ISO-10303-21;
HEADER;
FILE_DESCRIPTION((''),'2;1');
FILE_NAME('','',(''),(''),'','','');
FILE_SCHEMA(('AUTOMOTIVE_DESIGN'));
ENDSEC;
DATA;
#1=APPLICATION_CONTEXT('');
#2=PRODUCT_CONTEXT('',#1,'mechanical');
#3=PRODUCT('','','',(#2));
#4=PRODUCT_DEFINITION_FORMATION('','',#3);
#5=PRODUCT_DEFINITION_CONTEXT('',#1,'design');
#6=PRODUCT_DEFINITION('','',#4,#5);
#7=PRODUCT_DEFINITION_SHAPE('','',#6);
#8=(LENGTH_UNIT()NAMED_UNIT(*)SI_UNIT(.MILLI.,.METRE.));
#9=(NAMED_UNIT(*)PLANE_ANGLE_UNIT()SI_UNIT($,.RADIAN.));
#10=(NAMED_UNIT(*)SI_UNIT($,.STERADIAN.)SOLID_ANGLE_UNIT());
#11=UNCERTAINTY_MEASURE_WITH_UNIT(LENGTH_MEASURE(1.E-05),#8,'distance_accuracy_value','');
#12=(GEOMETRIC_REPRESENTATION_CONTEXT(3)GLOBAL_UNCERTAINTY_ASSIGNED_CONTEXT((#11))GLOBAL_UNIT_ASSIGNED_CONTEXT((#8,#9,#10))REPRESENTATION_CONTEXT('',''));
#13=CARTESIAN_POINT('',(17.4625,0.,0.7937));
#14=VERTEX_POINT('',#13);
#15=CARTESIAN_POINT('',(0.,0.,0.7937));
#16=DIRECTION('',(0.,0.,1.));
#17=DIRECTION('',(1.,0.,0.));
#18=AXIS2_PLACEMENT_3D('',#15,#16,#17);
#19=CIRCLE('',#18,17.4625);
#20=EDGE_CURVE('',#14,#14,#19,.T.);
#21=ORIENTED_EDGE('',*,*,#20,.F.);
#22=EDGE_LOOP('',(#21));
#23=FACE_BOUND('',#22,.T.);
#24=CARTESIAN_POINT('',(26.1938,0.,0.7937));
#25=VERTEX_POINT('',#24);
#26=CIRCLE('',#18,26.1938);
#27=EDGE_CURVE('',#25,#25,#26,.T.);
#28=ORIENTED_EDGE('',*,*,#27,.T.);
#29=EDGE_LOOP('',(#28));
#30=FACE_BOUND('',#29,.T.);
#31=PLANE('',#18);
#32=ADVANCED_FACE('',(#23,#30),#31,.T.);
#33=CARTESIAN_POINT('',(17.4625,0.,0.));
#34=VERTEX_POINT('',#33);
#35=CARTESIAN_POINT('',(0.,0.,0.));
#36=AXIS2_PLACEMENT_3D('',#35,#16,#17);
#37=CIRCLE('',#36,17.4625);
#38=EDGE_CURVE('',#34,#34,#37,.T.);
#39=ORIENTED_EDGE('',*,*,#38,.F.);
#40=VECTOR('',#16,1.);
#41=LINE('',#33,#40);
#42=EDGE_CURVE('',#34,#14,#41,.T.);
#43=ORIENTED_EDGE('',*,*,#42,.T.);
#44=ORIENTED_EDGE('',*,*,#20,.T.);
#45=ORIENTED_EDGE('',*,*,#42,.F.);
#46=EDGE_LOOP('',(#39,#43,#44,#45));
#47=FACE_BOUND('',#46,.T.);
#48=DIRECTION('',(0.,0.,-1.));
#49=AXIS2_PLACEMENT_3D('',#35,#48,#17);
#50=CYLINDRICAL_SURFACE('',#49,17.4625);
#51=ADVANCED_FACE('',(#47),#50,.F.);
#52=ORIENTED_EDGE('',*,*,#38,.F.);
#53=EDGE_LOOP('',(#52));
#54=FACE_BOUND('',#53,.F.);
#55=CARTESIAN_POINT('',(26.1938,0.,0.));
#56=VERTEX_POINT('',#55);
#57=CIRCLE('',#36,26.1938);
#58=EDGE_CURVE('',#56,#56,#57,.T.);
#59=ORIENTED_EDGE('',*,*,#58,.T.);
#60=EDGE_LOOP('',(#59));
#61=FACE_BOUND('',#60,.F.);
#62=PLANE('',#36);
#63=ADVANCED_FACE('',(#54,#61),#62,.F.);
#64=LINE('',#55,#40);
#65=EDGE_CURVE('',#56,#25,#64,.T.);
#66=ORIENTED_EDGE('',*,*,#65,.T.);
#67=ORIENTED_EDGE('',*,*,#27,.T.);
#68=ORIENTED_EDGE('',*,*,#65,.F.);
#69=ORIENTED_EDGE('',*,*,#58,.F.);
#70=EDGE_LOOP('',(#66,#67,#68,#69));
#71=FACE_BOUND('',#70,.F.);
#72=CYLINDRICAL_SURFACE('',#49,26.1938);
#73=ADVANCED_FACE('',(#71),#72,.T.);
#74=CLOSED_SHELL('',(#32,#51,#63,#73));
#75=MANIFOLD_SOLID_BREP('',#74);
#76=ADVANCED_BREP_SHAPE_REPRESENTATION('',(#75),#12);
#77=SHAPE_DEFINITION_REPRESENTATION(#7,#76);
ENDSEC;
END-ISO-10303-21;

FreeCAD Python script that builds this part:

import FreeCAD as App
import Part
import Sketcher
from FreeCAD import Vector
Q = App.Units.Quantity

doc = App.newDocument("Part")
params = doc.addObject("Spreadsheet::Sheet", "Params")
for row, (alias, value) in enumerate([
    ("sketch1_diameter", "2.0625 in"),
    ("sketch1_diameter2", "1.375 in"),
    ("pad1_length", "0.031248 in"),
], start=1):
    params.set(f"A{row}", alias)
    params.set(f"B{row}", "=" + value)
    params.setAlias(f"B{row}", alias)

body = doc.addObject("PartDesign::Body", "Body")

sketch1 = body.newObject("Sketcher::SketchObject", "Sketch")
sketch1.AttachmentSupport = (doc.getObject("XY_Plane"), [""])
sketch1.MapMode = "FlatFace"
sketch1.addGeometry([
    Part.Circle(Vector(0, 0, 0), Vector(0, 0, 1), 26.1938),
    Part.Circle(Vector(0, 0, 0), Vector(0, 0, 1), 17.4625),
], False)
sketch1.addConstraint([
    Sketcher.Constraint("Coincident", 0, 3, -1, 1),
    Sketcher.Constraint("Coincident", 1, 3, -1, 1),
    Sketcher.Constraint("Diameter", 0, Q("2.0625 in")),
    Sketcher.Constraint("Diameter", 1, Q("1.375 in")),
])
sketch1.setExpression("Constraints[2]", "Params.sketch1_diameter")
sketch1.setExpression("Constraints[3]", "Params.sketch1_diameter2")
pad1 = body.newObject("PartDesign::Pad", "Pad")
pad1.Profile = sketch1
pad1.setExpression("Length", "Params.pad1_length")

doc.recompute()
